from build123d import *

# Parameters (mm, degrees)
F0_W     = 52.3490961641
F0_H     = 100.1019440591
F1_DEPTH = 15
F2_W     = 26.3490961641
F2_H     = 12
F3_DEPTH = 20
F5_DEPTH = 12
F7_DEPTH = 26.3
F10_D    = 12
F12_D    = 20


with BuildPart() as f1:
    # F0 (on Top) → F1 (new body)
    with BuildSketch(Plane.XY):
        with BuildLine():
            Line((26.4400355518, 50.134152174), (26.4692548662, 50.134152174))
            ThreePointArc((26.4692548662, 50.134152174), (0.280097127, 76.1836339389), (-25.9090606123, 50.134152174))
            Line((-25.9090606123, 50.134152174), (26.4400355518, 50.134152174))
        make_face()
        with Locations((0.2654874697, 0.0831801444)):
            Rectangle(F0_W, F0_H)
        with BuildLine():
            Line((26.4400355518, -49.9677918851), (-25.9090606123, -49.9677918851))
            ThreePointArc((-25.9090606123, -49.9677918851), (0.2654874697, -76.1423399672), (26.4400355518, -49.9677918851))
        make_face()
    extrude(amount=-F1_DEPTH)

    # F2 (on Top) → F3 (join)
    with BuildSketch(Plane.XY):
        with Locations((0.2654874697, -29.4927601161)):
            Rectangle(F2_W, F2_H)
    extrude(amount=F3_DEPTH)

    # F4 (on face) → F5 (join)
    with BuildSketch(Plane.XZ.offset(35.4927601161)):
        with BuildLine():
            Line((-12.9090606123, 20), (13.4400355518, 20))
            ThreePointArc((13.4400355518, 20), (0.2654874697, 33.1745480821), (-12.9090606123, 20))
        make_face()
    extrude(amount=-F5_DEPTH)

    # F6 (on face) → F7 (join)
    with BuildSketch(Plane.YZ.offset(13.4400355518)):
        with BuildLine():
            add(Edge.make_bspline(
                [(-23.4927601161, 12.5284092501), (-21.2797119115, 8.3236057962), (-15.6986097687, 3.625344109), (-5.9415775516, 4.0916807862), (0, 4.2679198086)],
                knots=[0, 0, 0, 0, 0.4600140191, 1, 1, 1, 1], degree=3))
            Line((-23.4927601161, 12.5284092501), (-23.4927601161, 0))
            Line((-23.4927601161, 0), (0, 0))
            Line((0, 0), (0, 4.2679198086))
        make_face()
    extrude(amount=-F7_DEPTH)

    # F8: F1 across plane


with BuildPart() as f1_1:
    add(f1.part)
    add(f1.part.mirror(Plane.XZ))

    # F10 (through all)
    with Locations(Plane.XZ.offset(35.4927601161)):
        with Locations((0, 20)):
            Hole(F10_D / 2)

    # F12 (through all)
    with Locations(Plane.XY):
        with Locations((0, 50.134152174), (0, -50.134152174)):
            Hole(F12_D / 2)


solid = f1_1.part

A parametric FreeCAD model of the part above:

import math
import FreeCAD as App
import Part
import Sketcher


def add_polygon(sketch, points):
    """Adds a closed chain of lines whose ends are joined by coincident constraints."""
    first, n = sketch.GeometryCount, len(points)
    for a, b in zip(points, points[1:] + points[:1]):
        sketch.addGeometry(Part.LineSegment(App.Vector(*a, 0), App.Vector(*b, 0)), False)
    for i in range(n):
        sketch.addConstraint(Sketcher.Constraint("Coincident", first + i, 2, first + (i + 1) % n, 1))

doc = App.newDocument("Part")
body = doc.addObject("PartDesign::Body", "Body")

# Sketch on XY plane
sketch1 = doc.addObject("Sketcher::SketchObject", "Sketch")
body.addObject(sketch1)
sketch1.AttachmentSupport = (doc.XY_Plane, [""])
sketch1.MapMode = "FlatFace"
sketch1.addGeometry([
    Part.ArcOfCircle(Part.Circle(App.Vector(0.280097, 49.994102, 0), App.Vector(0, 0, 1), 26.189532), math.radians(0.306395), math.radians(179.693605)),  # 0
    Part.LineSegment(App.Vector(-25.909061, 50.134152, 0), App.Vector(-25.909061, -49.967792, 0)),  # 1
    Part.ArcOfCircle(Part.Circle(App.Vector(0.265487, -49.967792, 0), App.Vector(0, 0, 1), 26.174548), math.radians(180), math.radians(360)),  # 2
    Part.LineSegment(App.Vector(26.440036, -49.967792, 0), App.Vector(26.440036, 50.134152, 0)),  # 3
    Part.LineSegment(App.Vector(26.440036, 50.134152, 0), App.Vector(26.469255, 50.134152, 0)),  # 4
], False)
sketch1.addConstraint([
    Sketcher.Constraint("Coincident", 0, 2, 1, 1),
    Sketcher.Constraint("Tangent", 1, 2, 2, 1),
    Sketcher.Constraint("Tangent", 2, 2, 3, 1),
    Sketcher.Constraint("Coincident", 3, 2, 4, 1),
    Sketcher.Constraint("Coincident", 4, 2, 0, 1),
    Sketcher.Constraint("Vertical", 1),
    Sketcher.Constraint("Vertical", 3),
    Sketcher.Constraint("Horizontal", 4),
    Sketcher.Constraint("Horizontal", 0, 2, 3, 2),
    Sketcher.Constraint("Radius", 2, 26.174548),
    Sketcher.Constraint("Radius", 0, 26.189532),
    Sketcher.Constraint("DistanceX", 4, 1, 4, 2, 0.029219),
    Sketcher.Constraint("DistanceY", -1, 1, 0, 3, 49.994102),
    Sketcher.Constraint("DistanceY", 1, 2, 1, 1, 100.101944),
    Sketcher.Constraint("DistanceX", 0, 2, -1, 1, 25.909061),
])
pad1 = doc.addObject("PartDesign::Pad", "Pad")
body.addObject(pad1)
pad1.Profile = sketch1
pad1.Length = 15
pad1.Reversed = True

# Sketch on XY plane
sketch2 = doc.addObject("Sketcher::SketchObject", "Sketch001")
body.addObject(sketch2)
sketch2.AttachmentSupport = (doc.XY_Plane, [""])
sketch2.MapMode = "FlatFace"
add_polygon(sketch2, [(-13, -23), (-13, -35), (13, -35), (13, -23)])  # lines 0-3
sketch2.addConstraint([
    Sketcher.Constraint("Vertical", 0),
    Sketcher.Constraint("Horizontal", 1),
    Sketcher.Constraint("Vertical", 2),
    Sketcher.Constraint("Horizontal", 3),
    Sketcher.Constraint("DistanceY", 0, 2, 0, 1, 12.0),
    Sketcher.Constraint("DistanceX", 1, 1, 1, 2, 26.349096),
    Sketcher.Constraint("DistanceX", 0, 2, -1, 1, 12.909061),
    Sketcher.Constraint("DistanceY", 0, 2, -1, 1, 35.49276),
])
pad2 = doc.addObject("PartDesign::Pad", "Pad001")
body.addObject(pad2)
pad2.Profile = sketch2
pad2.Length = 20

# Sketch on XZ plane
sketch3 = doc.addObject("Sketcher::SketchObject", "Sketch002")
body.addObject(sketch3)
sketch3.AttachmentSupport = (doc.XZ_Plane, [""])
sketch3.MapMode = "FlatFace"
sketch3.AttachmentOffset = App.Placement(App.Vector(0, 0, 35.49276), App.Rotation())
sketch3.addGeometry([
    Part.LineSegment(App.Vector(-13, 20, 0), App.Vector(13, 20, 0)),
    Part.ArcOfCircle(Part.Circle(App.Vector(0, 20, 0), App.Vector(0, 0, 1), 13), math.radians(0), math.radians(180)),
], False)
sketch3.addConstraint([
    Sketcher.Constraint("Coincident", 0, 1, 1, 2),
    Sketcher.Constraint("Coincident", 1, 1, 0, 2),
    Sketcher.Constraint("Horizontal", 0),
    Sketcher.Constraint("Horizontal", 1, 3, 0, 1),
    Sketcher.Constraint("DistanceY", -1, 1, 1, 3, 20.0),
    Sketcher.Constraint("Radius", 1, 13.174548),
    Sketcher.Constraint("DistanceX", 0, 1, -1, 1, 12.909061),
])
pad3 = doc.addObject("PartDesign::Pad", "Pad002")
body.addObject(pad3)
pad3.Profile = sketch3
pad3.Length = 12
pad3.Reversed = True

# Sketch on YZ plane
sketch4 = doc.addObject("Sketcher::SketchObject", "Sketch003")
body.addObject(sketch4)
sketch4.AttachmentSupport = (doc.YZ_Plane, [""])
sketch4.MapMode = "FlatFace"
sketch4.AttachmentOffset = App.Placement(App.Vector(0, 0, 13.440036), App.Rotation())
sketch4.addGeometry([
    Part.BSplineCurve([App.Vector(-23.49276, 12.528409, 0), App.Vector(-21.279712, 8.323606, 0), App.Vector(-15.69861, 3.625344, 0), App.Vector(-5.941578, 4.091681, 0), App.Vector(0, 4.26792, 0)], [4, 1, 4], [0, 0.460014019, 1], False, 3, [1, 1, 1, 1, 1], False),
    Part.LineSegment(App.Vector(-23.49276, 12.528409, 0), App.Vector(-23.49276, 0, 0)),
    Part.LineSegment(App.Vector(-23.49276, 0, 0), App.Vector(0, 0, 0)),
    Part.LineSegment(App.Vector(0, 0, 0), App.Vector(0, 4.26792, 0)),
], False)
sketch4.addConstraint([
    Sketcher.Constraint("Block", 0),
    Sketcher.Constraint("Coincident", 0, 1, 1, 1),
    Sketcher.Constraint("Coincident", 1, 2, 2, 1),
    Sketcher.Constraint("Coincident", 2, 2, 3, 1),
    Sketcher.Constraint("Coincident", 3, 2, 0, 2),
    Sketcher.Constraint("Vertical", 1),
    Sketcher.Constraint("Horizontal", 2),
    Sketcher.Constraint("Vertical", 3),
    Sketcher.Constraint("PointOnObject", 1, 2, -1),
])
pad4 = doc.addObject("PartDesign::Pad", "Pad003")
body.addObject(pad4)
pad4.Profile = sketch4
pad4.Length = 26.3
pad4.Reversed = True
body2 = doc.addObject("PartDesign::Body", "Body001")
doc.recompute()

body2.BaseFeature = body
doc.recompute()

mirroring = doc.addObject("Part::Mirroring", "Mirroring")
mirroring.Source = body
mirroring.Base = App.Vector(0, 0, 0)
mirroring.Normal = App.Vector(0, -1, 0)
body3 = doc.addObject("PartDesign::Body", "Body002")
body3.BaseFeature = mirroring
boolean = doc.addObject("PartDesign::Boolean", "Boolean")
body2.addObject(boolean)
boolean.Type = "Fuse"
boolean.addObjects([body3])
doc.recompute()

# Sketch on XZ plane
sketch5 = doc.addObject("Sketcher::SketchObject", "Sketch004")
body2.addObject(sketch5)
sketch5.AttachmentSupport = (doc.getObject("XZ_Plane001"), [""])
sketch5.MapMode = "FlatFace"
sketch5.AttachmentOffset = App.Placement(App.Vector(0, 0, 35.49276), App.Rotation())
sketch5.addGeometry(Part.Circle(App.Vector(0, 20, 0), App.Vector(0, 0, 1), 6), False)
sketch5.addConstraint([
    Sketcher.Constraint("PointOnObject", 0, 3, -2),
    Sketcher.Constraint("Diameter", 0, 12.0),
    Sketcher.Constraint("DistanceY", -1, 1, 0, 3, 20.0),
])
doc.recompute()
hole = doc.addObject("PartDesign::Hole", "Hole")
body2.addObject(hole)
hole.Profile = sketch5
hole.ThreadType = "None"
hole.Diameter = 12
hole.DepthType = "ThroughAll"

# Sketch on XY plane
sketch6 = doc.addObject("Sketcher::SketchObject", "Sketch005")
body2.addObject(sketch6)
sketch6.AttachmentSupport = (doc.getObject("XY_Plane001"), [""])
sketch6.MapMode = "FlatFace"
sketch6.addGeometry([
    Part.Circle(App.Vector(0, 50, 0), App.Vector(0, 0, 1), 10),
    Part.Circle(App.Vector(0, -50, 0), App.Vector(0, 0, 1), 10),
], False)
sketch6.addConstraint([
    Sketcher.Constraint("Equal", 0, 1),
    Sketcher.Constraint("Symmetric", 0, 3, 1, 3, -1, 1),
    Sketcher.Constraint("PointOnObject", 0, 3, -2),
    Sketcher.Constraint("Diameter", 0, 20.0),
    Sketcher.Constraint("DistanceY", -1, 1, 0, 3, 50.134152),
])
doc.recompute()
hole2 = doc.addObject("PartDesign::Hole", "Hole001")
body2.addObject(hole2)
hole2.Profile = sketch6
hole2.ThreadType = "None"
hole2.Diameter = 20
hole2.DepthType = "ThroughAll"
mirroring.Visibility = False

doc.recompute()
